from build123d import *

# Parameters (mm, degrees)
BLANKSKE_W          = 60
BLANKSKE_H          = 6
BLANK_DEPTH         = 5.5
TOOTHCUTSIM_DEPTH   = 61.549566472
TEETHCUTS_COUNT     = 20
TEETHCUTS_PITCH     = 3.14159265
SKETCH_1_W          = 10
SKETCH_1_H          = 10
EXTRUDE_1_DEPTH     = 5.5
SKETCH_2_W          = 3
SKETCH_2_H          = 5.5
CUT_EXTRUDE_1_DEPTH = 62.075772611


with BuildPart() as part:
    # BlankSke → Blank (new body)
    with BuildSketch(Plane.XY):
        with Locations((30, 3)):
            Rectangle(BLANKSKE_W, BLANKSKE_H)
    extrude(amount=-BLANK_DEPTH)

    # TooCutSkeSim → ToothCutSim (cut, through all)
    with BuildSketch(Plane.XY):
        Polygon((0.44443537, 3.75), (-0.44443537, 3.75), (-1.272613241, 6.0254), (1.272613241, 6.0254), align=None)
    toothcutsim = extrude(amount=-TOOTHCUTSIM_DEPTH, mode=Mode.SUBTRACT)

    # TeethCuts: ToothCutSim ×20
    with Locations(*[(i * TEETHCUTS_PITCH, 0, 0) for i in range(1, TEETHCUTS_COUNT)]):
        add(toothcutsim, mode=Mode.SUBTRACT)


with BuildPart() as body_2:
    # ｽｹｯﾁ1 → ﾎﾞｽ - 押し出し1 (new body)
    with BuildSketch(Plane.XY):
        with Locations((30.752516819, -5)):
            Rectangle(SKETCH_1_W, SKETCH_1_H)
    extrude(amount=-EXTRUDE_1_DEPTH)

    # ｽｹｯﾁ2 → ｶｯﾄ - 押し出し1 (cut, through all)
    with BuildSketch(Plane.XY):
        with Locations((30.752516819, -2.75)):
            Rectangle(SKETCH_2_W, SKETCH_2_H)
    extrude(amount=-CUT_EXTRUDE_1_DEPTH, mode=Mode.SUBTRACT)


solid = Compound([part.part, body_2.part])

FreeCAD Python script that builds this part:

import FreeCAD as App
import Part
import Sketcher
Q = App.Units.Quantity


def add_polygon(sketch, points):
    """Adds a closed chain of lines whose ends are joined by coincident constraints."""
    first, n = sketch.GeometryCount, len(points)
    for a, b in zip(points, points[1:] + points[:1]):
        sketch.addGeometry(Part.LineSegment(App.Vector(*a, 0), App.Vector(*b, 0)), False)
    for i in range(n):
        sketch.addConstraint(Sketcher.Constraint("Coincident", first + i, 2, first + (i + 1) % n, 1))

doc = App.newDocument("Part")
params = doc.addObject("Spreadsheet::Sheet", "Params")
for row, (alias, value) in enumerate([
    ("sketch1_width", "60 mm"),
    ("sketch1_height", "6 mm"),
    ("pad1_length", "5.5 mm"),
    ("linearpattern_pitch", "3.141593 mm"),
    ("sketch3_width", "10 mm"),
    ("pad2_length", "5.5 mm"),
    ("sketch4_width", "3 mm"),
    ("sketch4_height", "5.5 mm"),
], start=1):
    params.set(f"A{row}", alias)
    params.set(f"B{row}", "=" + value)
    params.setAlias(f"B{row}", alias)

body = doc.addObject("PartDesign::Body", "Body")

sketch1 = body.newObject("Sketcher::SketchObject", "Sketch")
sketch1.AttachmentSupport = (doc.getObject("XY_Plane"), [""])
sketch1.MapMode = "FlatFace"
add_polygon(sketch1, [(0, 6), (0, 0), (60, 0), (60, 6)])
sketch1.addConstraint([
    Sketcher.Constraint("Vertical", 0),
    Sketcher.Constraint("Horizontal", 1),
    Sketcher.Constraint("Vertical", 2),
    Sketcher.Constraint("Horizontal", 3),
    Sketcher.Constraint("Coincident", 0, 2, -1, 1),
    Sketcher.Constraint("DistanceX", 1, 1, 1, 2, 60.0),
    Sketcher.Constraint("DistanceY", 0, 2, 0, 1, 6.0),
])
sketch1.setExpression("Constraints[9]", "Params.sketch1_width")
sketch1.setExpression("Constraints[10]", "Params.sketch1_height")
pad1 = body.newObject("PartDesign::Pad", "Pad")
pad1.Profile = sketch1
pad1.setExpression("Length", "Params.pad1_length")
pad1.Reversed = True

sketch2 = body.newObject("Sketcher::SketchObject", "Sketch001")
sketch2.AttachmentSupport = (doc.getObject("XY_Plane"), [""])
sketch2.MapMode = "FlatFace"
add_polygon(sketch2, [(-0.444435, 3.75), (0.444435, 3.75), (1.272613, 6.0254), (-1.272613, 6.0254)])
sketch2.addConstraint([
    Sketcher.Constraint("Horizontal", 0),
    Sketcher.Constraint("Horizontal", 2),
    Sketcher.Constraint("Equal", 1, 3),
    Sketcher.Constraint("Angle", 1, Q("70 deg")),
    Sketcher.Constraint("DistanceY", -1, 1, 0, 2, 3.75),
    Sketcher.Constraint("DistanceX", 0, 1, 0, 2, 0.888871),
    Sketcher.Constraint("DistanceY", -1, 1, 1, 2, 6.0254),
    Sketcher.Constraint("DistanceX", -1, 1, 0, 2, 0.444435),
])
pocket1 = body.newObject("PartDesign::Pocket", "Pocket")
pocket1.Profile = sketch2
pocket1.Type = "ThroughAll"
doc.recompute()

linearpattern = body.newObject("PartDesign::LinearPattern", "LinearPattern")
linearpattern.Originals = [pocket1]
linearpattern.Direction = (doc.getObject("X_Axis"), [""])
linearpattern.Mode = "offset"
linearpattern.setExpression("Offset", "Params.linearpattern_pitch")
linearpattern.Occurrences = 20
body.Tip = linearpattern
body2 = doc.addObject("PartDesign::Body", "Body001")

sketch3 = body2.newObject("Sketcher::SketchObject", "Sketch002")
sketch3.AttachmentSupport = (doc.getObject("XY_Plane001"), [""])
sketch3.MapMode = "FlatFace"
add_polygon(sketch3, [(25.752517, 0), (25.752517, -10), (35.752517, -10), (35.752517, 0)])
sketch3.addConstraint([
    Sketcher.Constraint("Vertical", 0),
    Sketcher.Constraint("Horizontal", 1),
    Sketcher.Constraint("Vertical", 2),
    Sketcher.Constraint("Horizontal", 3),
    Sketcher.Constraint("PointOnObject", 2, 2, -1),
    Sketcher.Constraint("Equal", 3, 0),
    Sketcher.Constraint("DistanceX", 1, 1, 1, 2, 10.0),
    Sketcher.Constraint("DistanceX", -1, 1, 0, 2, 25.752517),
])
sketch3.setExpression("Constraints[10]", "Params.sketch3_width")
pad2 = body2.newObject("PartDesign::Pad", "Pad001")
pad2.Profile = sketch3
pad2.setExpression("Length", "Params.pad2_length")
pad2.Reversed = True

sketch4 = body2.newObject("Sketcher::SketchObject", "Sketch003")
sketch4.AttachmentSupport = (doc.getObject("XY_Plane001"), [""])
sketch4.MapMode = "FlatFace"
add_polygon(sketch4, [(29.252517, 0), (29.252517, -5.5), (32.252517, -5.5), (32.252517, 0)])
sketch4.addConstraint([
    Sketcher.Constraint("Vertical", 0),
    Sketcher.Constraint("Horizontal", 1),
    Sketcher.Constraint("Vertical", 2),
    Sketcher.Constraint("Horizontal", 3),
    Sketcher.Constraint("PointOnObject", 2, 2, -1),
    Sketcher.Constraint("DistanceX", 1, 1, 1, 2, 3.0),
    Sketcher.Constraint("DistanceY", 0, 2, 0, 1, 5.5),
    Sketcher.Constraint("DistanceX", -1, 1, 0, 2, 29.252517),
])
sketch4.setExpression("Constraints[9]", "Params.sketch4_width")
sketch4.setExpression("Constraints[10]", "Params.sketch4_height")
pocket2 = body2.newObject("PartDesign::Pocket", "Pocket001")
pocket2.Profile = sketch4
pocket2.Type = "ThroughAll"

doc.recompute()
